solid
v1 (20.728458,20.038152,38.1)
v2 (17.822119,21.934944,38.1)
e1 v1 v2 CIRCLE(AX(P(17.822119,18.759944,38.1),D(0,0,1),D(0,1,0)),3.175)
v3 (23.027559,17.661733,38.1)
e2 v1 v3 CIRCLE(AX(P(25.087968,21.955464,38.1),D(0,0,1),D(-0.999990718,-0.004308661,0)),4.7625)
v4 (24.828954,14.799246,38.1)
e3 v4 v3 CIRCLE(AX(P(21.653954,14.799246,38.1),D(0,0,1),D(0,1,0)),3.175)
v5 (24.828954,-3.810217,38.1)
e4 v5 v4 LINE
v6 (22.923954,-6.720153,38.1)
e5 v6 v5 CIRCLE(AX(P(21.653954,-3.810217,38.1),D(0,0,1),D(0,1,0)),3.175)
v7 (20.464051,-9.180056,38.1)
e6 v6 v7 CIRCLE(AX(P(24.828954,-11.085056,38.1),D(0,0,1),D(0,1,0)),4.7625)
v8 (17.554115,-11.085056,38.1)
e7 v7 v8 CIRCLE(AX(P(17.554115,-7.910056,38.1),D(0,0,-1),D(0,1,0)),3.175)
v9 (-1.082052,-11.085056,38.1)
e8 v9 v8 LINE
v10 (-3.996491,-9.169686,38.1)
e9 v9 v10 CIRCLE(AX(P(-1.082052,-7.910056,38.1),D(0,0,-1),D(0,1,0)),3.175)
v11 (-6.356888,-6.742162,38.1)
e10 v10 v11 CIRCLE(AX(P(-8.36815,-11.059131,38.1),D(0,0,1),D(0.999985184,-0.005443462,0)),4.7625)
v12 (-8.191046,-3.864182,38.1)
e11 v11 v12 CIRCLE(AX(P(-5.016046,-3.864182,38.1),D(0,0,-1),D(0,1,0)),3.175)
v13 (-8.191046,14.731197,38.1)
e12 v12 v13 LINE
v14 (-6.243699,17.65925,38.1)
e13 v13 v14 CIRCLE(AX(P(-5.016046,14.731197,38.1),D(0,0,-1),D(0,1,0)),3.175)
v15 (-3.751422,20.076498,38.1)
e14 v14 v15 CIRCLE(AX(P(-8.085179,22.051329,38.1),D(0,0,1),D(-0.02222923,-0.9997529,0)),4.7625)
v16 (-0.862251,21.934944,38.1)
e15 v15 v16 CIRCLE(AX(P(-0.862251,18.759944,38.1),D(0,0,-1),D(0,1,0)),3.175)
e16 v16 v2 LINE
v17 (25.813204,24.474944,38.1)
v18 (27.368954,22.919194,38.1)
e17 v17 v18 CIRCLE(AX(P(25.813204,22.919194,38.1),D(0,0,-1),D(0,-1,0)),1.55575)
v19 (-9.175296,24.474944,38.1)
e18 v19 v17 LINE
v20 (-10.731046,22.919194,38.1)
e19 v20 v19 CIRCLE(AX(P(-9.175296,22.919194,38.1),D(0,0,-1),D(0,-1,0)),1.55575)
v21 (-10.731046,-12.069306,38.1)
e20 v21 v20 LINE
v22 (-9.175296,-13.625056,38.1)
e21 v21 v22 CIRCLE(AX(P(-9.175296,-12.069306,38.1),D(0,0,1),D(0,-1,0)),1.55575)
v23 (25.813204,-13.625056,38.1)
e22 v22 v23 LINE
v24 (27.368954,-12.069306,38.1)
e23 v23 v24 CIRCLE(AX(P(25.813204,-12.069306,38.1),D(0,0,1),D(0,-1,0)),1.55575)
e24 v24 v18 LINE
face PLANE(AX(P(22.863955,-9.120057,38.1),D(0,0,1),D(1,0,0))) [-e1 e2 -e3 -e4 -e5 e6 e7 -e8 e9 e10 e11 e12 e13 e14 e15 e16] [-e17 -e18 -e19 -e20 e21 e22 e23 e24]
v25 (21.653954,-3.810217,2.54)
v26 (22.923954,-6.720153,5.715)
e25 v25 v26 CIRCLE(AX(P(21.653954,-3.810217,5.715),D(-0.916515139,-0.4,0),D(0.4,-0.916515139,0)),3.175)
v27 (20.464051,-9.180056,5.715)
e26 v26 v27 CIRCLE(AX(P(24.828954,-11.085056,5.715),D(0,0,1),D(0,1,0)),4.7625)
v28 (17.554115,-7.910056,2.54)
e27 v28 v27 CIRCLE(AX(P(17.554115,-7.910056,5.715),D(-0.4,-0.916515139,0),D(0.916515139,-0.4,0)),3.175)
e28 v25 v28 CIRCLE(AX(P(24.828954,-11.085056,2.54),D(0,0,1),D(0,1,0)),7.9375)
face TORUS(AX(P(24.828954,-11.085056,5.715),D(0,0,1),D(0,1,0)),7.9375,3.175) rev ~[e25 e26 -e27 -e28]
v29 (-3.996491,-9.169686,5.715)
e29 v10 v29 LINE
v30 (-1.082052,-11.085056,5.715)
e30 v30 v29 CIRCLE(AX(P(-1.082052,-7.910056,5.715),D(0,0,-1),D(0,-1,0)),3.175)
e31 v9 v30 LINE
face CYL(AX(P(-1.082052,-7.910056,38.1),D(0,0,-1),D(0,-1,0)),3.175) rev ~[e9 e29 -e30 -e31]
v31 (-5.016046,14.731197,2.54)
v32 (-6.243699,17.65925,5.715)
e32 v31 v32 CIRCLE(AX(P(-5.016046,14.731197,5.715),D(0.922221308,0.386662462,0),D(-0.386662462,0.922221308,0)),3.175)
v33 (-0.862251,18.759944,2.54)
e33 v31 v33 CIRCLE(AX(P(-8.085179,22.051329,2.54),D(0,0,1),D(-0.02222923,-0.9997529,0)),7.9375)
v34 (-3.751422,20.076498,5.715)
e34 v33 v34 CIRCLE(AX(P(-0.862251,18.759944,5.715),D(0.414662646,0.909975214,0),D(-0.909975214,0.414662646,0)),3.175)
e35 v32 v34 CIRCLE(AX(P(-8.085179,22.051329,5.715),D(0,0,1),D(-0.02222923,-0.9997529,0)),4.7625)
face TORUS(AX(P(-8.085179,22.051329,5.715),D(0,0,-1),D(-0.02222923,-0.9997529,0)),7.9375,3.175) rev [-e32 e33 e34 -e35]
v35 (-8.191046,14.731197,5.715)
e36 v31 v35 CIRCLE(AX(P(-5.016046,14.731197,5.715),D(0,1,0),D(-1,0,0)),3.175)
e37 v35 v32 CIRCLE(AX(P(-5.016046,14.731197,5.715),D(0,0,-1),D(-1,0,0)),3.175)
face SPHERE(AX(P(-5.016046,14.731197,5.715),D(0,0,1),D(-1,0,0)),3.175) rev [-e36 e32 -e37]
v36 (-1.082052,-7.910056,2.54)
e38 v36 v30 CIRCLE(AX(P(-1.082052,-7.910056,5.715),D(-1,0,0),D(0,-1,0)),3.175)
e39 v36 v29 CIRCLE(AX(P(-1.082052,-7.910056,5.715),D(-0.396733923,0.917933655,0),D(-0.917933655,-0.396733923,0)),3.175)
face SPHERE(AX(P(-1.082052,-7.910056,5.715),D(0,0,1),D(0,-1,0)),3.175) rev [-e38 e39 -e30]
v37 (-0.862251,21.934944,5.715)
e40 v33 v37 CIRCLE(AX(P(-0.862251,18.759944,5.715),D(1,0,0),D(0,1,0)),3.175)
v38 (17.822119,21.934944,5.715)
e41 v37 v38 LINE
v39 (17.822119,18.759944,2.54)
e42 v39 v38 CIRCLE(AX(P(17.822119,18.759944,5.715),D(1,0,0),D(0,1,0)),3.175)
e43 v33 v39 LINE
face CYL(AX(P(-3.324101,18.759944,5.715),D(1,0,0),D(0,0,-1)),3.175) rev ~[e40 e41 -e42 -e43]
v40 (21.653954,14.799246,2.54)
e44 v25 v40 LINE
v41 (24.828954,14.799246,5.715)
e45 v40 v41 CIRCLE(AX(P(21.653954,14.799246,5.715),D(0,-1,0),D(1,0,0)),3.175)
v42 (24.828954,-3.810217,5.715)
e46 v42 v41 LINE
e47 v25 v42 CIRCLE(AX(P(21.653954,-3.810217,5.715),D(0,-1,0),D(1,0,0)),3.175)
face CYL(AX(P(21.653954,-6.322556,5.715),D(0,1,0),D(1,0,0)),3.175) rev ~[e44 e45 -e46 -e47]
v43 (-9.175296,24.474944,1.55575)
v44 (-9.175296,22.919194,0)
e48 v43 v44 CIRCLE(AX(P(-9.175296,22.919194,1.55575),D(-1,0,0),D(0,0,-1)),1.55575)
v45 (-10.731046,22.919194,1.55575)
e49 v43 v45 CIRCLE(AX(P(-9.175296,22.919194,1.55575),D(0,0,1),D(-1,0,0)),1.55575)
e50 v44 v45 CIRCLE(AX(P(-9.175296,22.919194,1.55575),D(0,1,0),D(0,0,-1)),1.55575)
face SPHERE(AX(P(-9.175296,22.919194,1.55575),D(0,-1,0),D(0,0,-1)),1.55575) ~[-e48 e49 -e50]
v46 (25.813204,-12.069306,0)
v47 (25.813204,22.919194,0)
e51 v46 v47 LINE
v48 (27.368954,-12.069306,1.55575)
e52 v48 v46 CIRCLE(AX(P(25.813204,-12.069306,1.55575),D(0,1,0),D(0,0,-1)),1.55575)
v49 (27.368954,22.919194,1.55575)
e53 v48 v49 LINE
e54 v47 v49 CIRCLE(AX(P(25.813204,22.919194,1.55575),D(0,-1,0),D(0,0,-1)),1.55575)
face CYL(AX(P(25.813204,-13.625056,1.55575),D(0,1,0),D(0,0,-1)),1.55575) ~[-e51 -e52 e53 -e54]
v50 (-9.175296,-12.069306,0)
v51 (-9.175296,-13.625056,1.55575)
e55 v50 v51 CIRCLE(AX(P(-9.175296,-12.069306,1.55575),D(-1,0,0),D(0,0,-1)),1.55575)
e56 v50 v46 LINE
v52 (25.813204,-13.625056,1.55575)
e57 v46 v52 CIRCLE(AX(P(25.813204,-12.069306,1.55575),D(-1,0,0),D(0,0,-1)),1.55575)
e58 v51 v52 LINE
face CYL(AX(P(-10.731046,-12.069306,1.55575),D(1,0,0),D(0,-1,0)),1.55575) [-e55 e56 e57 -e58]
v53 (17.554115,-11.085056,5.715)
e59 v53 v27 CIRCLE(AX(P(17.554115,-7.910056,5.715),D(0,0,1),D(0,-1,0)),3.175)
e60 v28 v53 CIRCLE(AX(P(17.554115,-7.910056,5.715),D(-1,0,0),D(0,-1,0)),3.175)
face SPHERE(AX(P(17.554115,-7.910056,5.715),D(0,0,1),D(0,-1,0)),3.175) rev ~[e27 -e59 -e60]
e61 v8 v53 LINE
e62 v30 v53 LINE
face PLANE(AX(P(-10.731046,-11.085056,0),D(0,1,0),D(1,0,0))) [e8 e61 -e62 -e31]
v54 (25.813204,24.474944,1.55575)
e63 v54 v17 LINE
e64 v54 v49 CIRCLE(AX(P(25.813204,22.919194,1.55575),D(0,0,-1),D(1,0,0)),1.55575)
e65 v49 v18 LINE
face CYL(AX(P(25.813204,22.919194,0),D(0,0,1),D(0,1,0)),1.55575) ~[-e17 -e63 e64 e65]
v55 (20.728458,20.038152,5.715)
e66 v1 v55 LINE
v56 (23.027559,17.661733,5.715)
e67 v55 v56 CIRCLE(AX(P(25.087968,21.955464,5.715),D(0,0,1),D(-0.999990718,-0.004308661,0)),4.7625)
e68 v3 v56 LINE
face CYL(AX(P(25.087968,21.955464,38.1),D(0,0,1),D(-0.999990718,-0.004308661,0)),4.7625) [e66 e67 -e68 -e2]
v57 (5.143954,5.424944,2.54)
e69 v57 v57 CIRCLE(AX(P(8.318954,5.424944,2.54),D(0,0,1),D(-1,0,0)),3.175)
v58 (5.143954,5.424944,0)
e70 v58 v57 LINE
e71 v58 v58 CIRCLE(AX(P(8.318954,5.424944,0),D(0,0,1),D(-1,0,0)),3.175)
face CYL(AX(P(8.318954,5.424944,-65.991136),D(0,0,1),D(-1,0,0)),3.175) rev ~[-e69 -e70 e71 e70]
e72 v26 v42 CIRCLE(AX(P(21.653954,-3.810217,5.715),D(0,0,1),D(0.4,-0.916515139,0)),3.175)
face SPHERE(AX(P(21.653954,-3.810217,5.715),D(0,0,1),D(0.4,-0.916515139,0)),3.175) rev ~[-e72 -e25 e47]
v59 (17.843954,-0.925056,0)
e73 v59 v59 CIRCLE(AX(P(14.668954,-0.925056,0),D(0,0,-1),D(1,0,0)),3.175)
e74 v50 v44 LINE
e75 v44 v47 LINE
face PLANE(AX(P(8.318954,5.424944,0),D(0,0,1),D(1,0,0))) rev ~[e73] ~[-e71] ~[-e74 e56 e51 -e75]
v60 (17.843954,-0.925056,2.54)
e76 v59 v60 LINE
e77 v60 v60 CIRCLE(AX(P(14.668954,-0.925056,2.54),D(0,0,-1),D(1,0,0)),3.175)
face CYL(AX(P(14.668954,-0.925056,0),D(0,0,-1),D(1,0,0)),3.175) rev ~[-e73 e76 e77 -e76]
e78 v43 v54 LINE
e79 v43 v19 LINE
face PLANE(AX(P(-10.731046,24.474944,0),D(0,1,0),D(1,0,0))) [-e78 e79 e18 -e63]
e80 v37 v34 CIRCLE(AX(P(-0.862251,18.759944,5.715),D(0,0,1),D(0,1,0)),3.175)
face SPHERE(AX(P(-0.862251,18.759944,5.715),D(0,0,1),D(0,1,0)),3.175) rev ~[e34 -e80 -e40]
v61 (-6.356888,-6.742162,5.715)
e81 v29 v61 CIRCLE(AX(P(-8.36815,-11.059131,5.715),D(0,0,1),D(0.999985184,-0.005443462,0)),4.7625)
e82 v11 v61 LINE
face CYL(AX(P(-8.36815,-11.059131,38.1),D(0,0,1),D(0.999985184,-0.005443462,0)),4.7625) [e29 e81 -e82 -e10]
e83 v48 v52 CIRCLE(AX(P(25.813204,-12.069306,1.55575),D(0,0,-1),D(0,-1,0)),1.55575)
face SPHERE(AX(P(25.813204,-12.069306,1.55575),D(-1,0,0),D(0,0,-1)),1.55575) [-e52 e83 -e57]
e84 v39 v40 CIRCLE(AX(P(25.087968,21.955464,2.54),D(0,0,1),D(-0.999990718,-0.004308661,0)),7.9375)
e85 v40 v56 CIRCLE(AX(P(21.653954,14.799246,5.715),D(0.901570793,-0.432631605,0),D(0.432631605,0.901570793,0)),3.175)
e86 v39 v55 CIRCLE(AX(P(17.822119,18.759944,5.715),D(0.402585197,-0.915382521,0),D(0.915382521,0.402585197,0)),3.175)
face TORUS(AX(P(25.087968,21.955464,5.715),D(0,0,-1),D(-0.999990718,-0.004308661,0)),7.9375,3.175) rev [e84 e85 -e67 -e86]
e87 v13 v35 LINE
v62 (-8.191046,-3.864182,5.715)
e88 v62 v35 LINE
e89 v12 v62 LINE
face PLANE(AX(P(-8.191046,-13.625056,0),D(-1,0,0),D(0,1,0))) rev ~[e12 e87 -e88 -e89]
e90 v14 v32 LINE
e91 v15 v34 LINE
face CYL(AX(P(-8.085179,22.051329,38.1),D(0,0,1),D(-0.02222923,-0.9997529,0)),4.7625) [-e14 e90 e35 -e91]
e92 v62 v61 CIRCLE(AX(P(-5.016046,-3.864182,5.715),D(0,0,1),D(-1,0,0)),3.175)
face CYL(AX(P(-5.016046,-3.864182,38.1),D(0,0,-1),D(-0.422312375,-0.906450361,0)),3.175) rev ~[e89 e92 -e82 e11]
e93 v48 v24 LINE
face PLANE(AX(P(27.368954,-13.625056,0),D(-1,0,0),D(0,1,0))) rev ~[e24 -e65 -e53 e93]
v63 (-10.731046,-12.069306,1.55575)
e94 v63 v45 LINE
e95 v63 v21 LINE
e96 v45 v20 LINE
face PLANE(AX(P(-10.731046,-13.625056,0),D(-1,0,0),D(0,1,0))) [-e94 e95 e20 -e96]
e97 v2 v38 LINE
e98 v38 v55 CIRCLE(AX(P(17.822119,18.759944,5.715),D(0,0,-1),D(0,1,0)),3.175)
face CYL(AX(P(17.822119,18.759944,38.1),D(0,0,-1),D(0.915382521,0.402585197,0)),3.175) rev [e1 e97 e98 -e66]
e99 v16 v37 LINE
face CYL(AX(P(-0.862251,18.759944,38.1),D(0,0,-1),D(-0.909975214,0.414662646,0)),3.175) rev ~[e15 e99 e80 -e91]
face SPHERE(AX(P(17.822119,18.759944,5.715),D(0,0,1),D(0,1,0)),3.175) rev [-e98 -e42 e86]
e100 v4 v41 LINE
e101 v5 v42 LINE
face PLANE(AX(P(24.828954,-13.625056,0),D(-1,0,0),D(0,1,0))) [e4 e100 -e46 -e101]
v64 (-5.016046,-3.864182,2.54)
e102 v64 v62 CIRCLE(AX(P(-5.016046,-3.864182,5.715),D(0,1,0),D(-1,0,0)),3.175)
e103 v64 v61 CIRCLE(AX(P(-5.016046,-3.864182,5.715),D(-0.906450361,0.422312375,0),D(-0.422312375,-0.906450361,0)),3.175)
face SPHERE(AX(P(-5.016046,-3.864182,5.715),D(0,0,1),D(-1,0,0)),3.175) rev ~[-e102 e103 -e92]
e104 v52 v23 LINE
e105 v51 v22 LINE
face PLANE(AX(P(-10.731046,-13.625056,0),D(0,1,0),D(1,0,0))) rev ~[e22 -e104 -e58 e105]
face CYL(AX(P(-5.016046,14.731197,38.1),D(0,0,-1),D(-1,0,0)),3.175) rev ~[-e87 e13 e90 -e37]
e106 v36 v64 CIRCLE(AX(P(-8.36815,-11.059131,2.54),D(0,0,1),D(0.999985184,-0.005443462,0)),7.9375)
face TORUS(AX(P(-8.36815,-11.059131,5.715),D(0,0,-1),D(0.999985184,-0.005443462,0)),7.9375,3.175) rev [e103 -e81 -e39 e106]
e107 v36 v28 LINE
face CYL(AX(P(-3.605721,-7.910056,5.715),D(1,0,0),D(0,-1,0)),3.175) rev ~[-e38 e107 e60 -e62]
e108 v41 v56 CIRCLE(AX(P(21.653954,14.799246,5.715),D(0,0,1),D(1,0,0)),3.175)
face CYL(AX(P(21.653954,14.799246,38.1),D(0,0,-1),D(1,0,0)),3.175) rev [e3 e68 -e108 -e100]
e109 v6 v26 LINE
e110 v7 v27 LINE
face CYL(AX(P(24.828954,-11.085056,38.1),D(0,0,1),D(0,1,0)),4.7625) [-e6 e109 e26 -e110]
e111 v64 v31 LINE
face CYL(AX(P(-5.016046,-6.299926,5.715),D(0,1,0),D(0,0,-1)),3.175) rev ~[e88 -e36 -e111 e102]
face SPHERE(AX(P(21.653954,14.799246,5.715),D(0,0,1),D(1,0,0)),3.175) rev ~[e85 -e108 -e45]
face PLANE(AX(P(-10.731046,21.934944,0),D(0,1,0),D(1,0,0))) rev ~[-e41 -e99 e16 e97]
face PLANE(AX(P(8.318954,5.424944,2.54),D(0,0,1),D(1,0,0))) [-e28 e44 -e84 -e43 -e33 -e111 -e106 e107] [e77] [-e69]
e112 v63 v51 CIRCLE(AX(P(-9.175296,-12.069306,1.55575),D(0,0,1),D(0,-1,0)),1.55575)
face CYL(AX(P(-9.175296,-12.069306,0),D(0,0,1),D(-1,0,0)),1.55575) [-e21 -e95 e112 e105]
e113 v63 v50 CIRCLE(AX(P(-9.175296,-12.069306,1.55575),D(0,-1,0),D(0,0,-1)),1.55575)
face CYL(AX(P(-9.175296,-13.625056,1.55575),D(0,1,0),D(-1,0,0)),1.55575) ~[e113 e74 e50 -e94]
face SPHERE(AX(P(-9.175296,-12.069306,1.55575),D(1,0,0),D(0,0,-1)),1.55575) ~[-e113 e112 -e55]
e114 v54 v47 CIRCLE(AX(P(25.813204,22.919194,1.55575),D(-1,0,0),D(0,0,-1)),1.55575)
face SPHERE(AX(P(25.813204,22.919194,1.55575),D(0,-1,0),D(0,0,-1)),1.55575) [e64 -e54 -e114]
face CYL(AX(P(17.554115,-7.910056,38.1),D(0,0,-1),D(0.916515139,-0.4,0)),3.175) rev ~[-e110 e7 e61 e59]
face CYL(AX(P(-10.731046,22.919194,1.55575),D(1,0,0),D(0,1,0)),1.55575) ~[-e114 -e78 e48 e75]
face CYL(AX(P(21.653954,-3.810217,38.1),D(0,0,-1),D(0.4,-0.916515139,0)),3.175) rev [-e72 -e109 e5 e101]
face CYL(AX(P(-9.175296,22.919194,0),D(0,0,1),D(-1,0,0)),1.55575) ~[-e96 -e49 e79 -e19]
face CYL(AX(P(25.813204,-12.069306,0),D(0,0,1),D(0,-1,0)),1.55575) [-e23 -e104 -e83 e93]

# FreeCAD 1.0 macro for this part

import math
import FreeCAD as App
import Part
import Sketcher

V = App.Vector
Q = App.Units.Quantity


def edges_at(feature, points):
    """Names of the edges that pass closest to the given points."""
    edges = feature.Shape.Edges
    near = lambda p: min(range(len(edges)), key=lambda i: edges[i].distToShape(Part.Vertex(*p))[0])
    return sorted({f"Edge{near(p) + 1}" for p in points})


def faces_at(feature, points):
    """Names of the faces that lie closest to the given points."""
    faces = feature.Shape.Faces
    near = lambda p: min(range(len(faces)), key=lambda i: faces[i].distToShape(Part.Vertex(*p))[0])
    return sorted({f"Face{near(p) + 1}" for p in points})

doc = App.newDocument("Part")
body = doc.addObject("PartDesign::Body", "Body")

# Sketch on XY plane
sketch1 = body.newObject("Sketcher::SketchObject", "Sketch")
sketch1.AttachmentSupport = (doc.getObject("XY_Plane"), [""])
sketch1.MapMode = "FlatFace"
sketch1.addGeometry([
    Part.LineSegment(V(-10.731046, 24.474944, 0), V(-10.731046, -13.625056, 0)),
    Part.LineSegment(V(-10.731046, -13.625056, 0), V(27.368954, -13.625056, 0)),
    Part.LineSegment(V(27.368954, -13.625056, 0), V(27.368954, 24.474944, 0)),
    Part.LineSegment(V(27.368954, 24.474944, 0), V(-10.731046, 24.474944, 0)),
], False)
sketch1.addConstraint([
    Sketcher.Constraint("Coincident", 0, 2, 1, 1),
    Sketcher.Constraint("Coincident", 1, 2, 2, 1),
    Sketcher.Constraint("Coincident", 2, 2, 3, 1),
    Sketcher.Constraint("Coincident", 3, 2, 0, 1),
    Sketcher.Constraint("Vertical", 0),
    Sketcher.Constraint("Horizontal", 1),
    Sketcher.Constraint("Vertical", 2),
    Sketcher.Constraint("Horizontal", 3),
    Sketcher.Constraint("Equal", 3, 0),
    Sketcher.Constraint("DistanceX", 1, 1, 1, 2, Q("1.5 in")),
    Sketcher.Constraint("DistanceX", 0, 2, -1, 1, 10.731046),
    Sketcher.Constraint("DistanceY", 0, 2, -1, 1, 13.625056),
])
pad1 = body.newObject("PartDesign::Pad", "Pad")
pad1.Profile = sketch1
pad1.Length = Q("1.5 in")
doc.recompute()

thickness = body.newObject("PartDesign::Thickness", "Thickness")
thickness.Base = (pad1, faces_at(pad1, [(8.319, 5.425, 38.1)]))
thickness.Value = Q("0.1 in")
thickness.Reversed = True
thickness.Join = "Arc"

# Sketch on XY plane
sketch2 = body.newObject("Sketcher::SketchObject", "Sketch001")
sketch2.AttachmentSupport = (doc.getObject("XY_Plane"), [""])
sketch2.MapMode = "FlatFace"
sketch2.addGeometry(Part.Circle(V(8.318954, 5.424944, 0), V(0, 0, 1), 3.175), False)
sketch2.addConstraint([
    Sketcher.Constraint("Diameter", 0, Q("0.25 in")),
    Sketcher.Constraint("DistanceX", -1, 1, 0, 3, 8.318954),
    Sketcher.Constraint("DistanceY", -1, 1, 0, 3, 5.424944),
])
doc.recompute()
hole = body.newObject("PartDesign::Hole", "Hole")
hole.Profile = sketch2
hole.ThreadType = "None"
hole.Diameter = Q("0.25 in")
hole.DepthType = "ThroughAll"
hole.Reversed = True
doc.recompute()

fillet = body.newObject("PartDesign::Fillet", "Fillet")
fillet.Base = (hole, edges_at(hole, [
    (8.319, -13.625, 0),
    (-10.731, 5.425, 0),
    (27.369, 5.425, 0),
    (8.319, 24.475, 0),
    (27.369, 24.475, 19.05),
    (27.369, -13.625, 19.05),
    (-10.731, 24.475, 19.05),
    (-10.731, -13.625, 19.05),
]))
fillet.Radius = 1.55575

# Sketch on XY plane
sketch3 = body.newObject("Sketcher::SketchObject", "Sketch002")
sketch3.AttachmentSupport = (doc.getObject("XY_Plane"), [""])
sketch3.MapMode = "FlatFace"
sketch3.AttachmentOffset = App.Placement(V(0, 0, 1.5 * 25.4), App.Rotation())
sketch3.addGeometry([
    Part.LineSegment(V(24.828954, -11.085056, 0), V(24.828954, -6.322556, 0)),  # 0
    Part.ArcOfCircle(Part.Circle(V(24.828954, -11.085056, 0), V(0, 0, 1), 4.7625), math.radians(90), math.radians(180)),  # 1
    Part.LineSegment(V(20.066454, -11.085056, 0), V(24.828954, -11.085056, 0)),  # 2
    Part.LineSegment(V(24.828954, 21.934944, 0), V(20.325512, 21.934944, 0)),  # 3
    Part.ArcOfCircle(Part.Circle(V(25.087968, 21.955464, 0), V(0, 0, 1), 4.7625), math.radians(-179.753131), math.radians(-93.117627)),  # 4
    Part.LineSegment(V(24.828954, 17.200013, 0), V(24.828954, 21.934944, 0)),  # 5
    Part.LineSegment(V(-8.191046, 21.934944, 0), V(-8.191046, 17.290006, 0)),  # 6
    Part.ArcOfCircle(Part.Circle(V(-8.085179, 22.051329, 0), V(0, 0, 1), 4.7625), math.radians(-91.273746), math.radians(-1.400319)),  # 7
    Part.LineSegment(V(-3.324101, 21.934944, 0), V(-8.191046, 21.934944, 0)),  # 8
    Part.LineSegment(V(-8.191046, -11.085056, 0), V(-3.605721, -11.085056, 0)),  # 9
    Part.ArcOfCircle(Part.Circle(V(-8.36815, -11.059131, 0), V(0, 0, 1), 4.7625), math.radians(-0.311889), math.radians(87.868834)),  # 10
    Part.LineSegment(V(-8.191046, -6.299926, 0), V(-8.191046, -11.085056, 0)),  # 11
], False)
sketch3.addConstraint([
    Sketcher.Constraint("Coincident", 0, 2, 1, 1),
    Sketcher.Constraint("Coincident", 1, 2, 2, 1),
    Sketcher.Constraint("Coincident", 2, 2, 0, 1),
    Sketcher.Constraint("Coincident", 3, 2, 4, 1),
    Sketcher.Constraint("Coincident", 4, 2, 5, 1),
    Sketcher.Constraint("Coincident", 5, 2, 3, 1),
    Sketcher.Constraint("Coincident", 6, 2, 7, 1),
    Sketcher.Constraint("Coincident", 7, 2, 8, 1),
    Sketcher.Constraint("Coincident", 8, 2, 6, 1),
    Sketcher.Constraint("Coincident", 9, 2, 10, 1),
    Sketcher.Constraint("Coincident", 10, 2, 11, 1),
    Sketcher.Constraint("Coincident", 11, 2, 9, 1),
    Sketcher.Constraint("Vertical", 0),
    Sketcher.Constraint("Horizontal", 2),
    Sketcher.Constraint("Horizontal", 3),
    Sketcher.Constraint("Vertical", 5),
    Sketcher.Constraint("Vertical", 6),
    Sketcher.Constraint("Horizontal", 8),
    Sketcher.Constraint("Horizontal", 9),
    Sketcher.Constraint("Vertical", 11),
    Sketcher.Constraint("Coincident", 2, 2, 1, 3),
    Sketcher.Constraint("Equal", 1, 4),
    Sketcher.Constraint("Equal", 4, 7),
    Sketcher.Constraint("Equal", 7, 10),
    Sketcher.Constraint("Horizontal", 5, 2, 7, 2),
    Sketcher.Constraint("Horizontal", 2, 2, 9, 2),
    Sketcher.Constraint("Vertical", 2, 2, 4, 2),
    Sketcher.Constraint("Vertical", 8, 2, 10, 2),
    Sketcher.Constraint("Radius", 1, Q("0.1875 in")),
    Sketcher.Constraint("DistanceY", 1, 2, 3, 2, Q("1.3 in")),
    Sketcher.Constraint("DistanceX", 6, 2, 4, 2, Q("1.3 in")),
    Sketcher.Constraint("DistanceY", 5, 1, 5, 2, 4.734931),
    Sketcher.Constraint("DistanceY", 6, 2, 6, 1, 4.644938),
    Sketcher.Constraint("DistanceY", 11, 2, 11, 1, 4.78513),
    Sketcher.Constraint("DistanceX", 7, 2, -1, 1, 3.324101),
    Sketcher.Constraint("DistanceX", 3, 2, 3, 1, 4.503442),
    Sketcher.Constraint("DistanceX", 8, 2, 8, 1, 4.866944),
    Sketcher.Constraint("DistanceX", 9, 1, 9, 2, 4.585325),
    Sketcher.Constraint("DistanceY", -1, 1, 7, 3, 22.051329),
])
pad2 = body.newObject("PartDesign::Pad", "Pad001")
pad2.Profile = sketch3
pad2.Length = Q("1.4 in")
pad2.Reversed = True
doc.recompute()

fillet2 = body.newObject("PartDesign::Fillet", "Fillet001")
fillet2.Base = (pad2, edges_at(pad2, [
    (24.829, 17.2, 20.32),
    (24.829, 5.439, 2.54),
    (21.637, 18.673, 2.54),
    (20.326, 21.935, 20.32),
    (8.501, 21.935, 2.54),
    (24.829, -6.323, 20.32),
    (21.461, -7.717, 2.54),
    (20.066, -11.085, 20.32),
    (8.23, -11.085, 2.54),
    (-4.93, -7.764, 2.54),
    (-8.191, -6.3, 20.32),
    (-3.606, -11.085, 20.32),
    (-4.797, 18.606, 2.54),
    (-8.191, 17.29, 20.32),
    (-8.191, 5.495, 2.54),
    (-3.324, 21.935, 20.32),
]))
fillet2.Radius = Q("0.125 in")

# Sketch on XY plane
sketch4 = body.newObject("Sketcher::SketchObject", "Sketch003")
sketch4.AttachmentSupport = (doc.getObject("XY_Plane"), [""])
sketch4.MapMode = "FlatFace"
sketch4.addGeometry(Part.Circle(V(14.668954, -0.925056, 0), V(0, 0, 1), 3.175), False)
sketch4.addConstraint([
    Sketcher.Constraint("Diameter", 0, Q("0.25 in")),
    Sketcher.Constraint("DistanceX", -1, 1, 0, 3, 14.668954),
    Sketcher.Constraint("DistanceY", 0, 3, -1, 1, 0.925056),
])
pocket1 = body.newObject("PartDesign::Pocket", "Pocket")
pocket1.Profile = sketch4
pocket1.Type = "ThroughAll"
pocket1.Reversed = True

doc.recompute()
